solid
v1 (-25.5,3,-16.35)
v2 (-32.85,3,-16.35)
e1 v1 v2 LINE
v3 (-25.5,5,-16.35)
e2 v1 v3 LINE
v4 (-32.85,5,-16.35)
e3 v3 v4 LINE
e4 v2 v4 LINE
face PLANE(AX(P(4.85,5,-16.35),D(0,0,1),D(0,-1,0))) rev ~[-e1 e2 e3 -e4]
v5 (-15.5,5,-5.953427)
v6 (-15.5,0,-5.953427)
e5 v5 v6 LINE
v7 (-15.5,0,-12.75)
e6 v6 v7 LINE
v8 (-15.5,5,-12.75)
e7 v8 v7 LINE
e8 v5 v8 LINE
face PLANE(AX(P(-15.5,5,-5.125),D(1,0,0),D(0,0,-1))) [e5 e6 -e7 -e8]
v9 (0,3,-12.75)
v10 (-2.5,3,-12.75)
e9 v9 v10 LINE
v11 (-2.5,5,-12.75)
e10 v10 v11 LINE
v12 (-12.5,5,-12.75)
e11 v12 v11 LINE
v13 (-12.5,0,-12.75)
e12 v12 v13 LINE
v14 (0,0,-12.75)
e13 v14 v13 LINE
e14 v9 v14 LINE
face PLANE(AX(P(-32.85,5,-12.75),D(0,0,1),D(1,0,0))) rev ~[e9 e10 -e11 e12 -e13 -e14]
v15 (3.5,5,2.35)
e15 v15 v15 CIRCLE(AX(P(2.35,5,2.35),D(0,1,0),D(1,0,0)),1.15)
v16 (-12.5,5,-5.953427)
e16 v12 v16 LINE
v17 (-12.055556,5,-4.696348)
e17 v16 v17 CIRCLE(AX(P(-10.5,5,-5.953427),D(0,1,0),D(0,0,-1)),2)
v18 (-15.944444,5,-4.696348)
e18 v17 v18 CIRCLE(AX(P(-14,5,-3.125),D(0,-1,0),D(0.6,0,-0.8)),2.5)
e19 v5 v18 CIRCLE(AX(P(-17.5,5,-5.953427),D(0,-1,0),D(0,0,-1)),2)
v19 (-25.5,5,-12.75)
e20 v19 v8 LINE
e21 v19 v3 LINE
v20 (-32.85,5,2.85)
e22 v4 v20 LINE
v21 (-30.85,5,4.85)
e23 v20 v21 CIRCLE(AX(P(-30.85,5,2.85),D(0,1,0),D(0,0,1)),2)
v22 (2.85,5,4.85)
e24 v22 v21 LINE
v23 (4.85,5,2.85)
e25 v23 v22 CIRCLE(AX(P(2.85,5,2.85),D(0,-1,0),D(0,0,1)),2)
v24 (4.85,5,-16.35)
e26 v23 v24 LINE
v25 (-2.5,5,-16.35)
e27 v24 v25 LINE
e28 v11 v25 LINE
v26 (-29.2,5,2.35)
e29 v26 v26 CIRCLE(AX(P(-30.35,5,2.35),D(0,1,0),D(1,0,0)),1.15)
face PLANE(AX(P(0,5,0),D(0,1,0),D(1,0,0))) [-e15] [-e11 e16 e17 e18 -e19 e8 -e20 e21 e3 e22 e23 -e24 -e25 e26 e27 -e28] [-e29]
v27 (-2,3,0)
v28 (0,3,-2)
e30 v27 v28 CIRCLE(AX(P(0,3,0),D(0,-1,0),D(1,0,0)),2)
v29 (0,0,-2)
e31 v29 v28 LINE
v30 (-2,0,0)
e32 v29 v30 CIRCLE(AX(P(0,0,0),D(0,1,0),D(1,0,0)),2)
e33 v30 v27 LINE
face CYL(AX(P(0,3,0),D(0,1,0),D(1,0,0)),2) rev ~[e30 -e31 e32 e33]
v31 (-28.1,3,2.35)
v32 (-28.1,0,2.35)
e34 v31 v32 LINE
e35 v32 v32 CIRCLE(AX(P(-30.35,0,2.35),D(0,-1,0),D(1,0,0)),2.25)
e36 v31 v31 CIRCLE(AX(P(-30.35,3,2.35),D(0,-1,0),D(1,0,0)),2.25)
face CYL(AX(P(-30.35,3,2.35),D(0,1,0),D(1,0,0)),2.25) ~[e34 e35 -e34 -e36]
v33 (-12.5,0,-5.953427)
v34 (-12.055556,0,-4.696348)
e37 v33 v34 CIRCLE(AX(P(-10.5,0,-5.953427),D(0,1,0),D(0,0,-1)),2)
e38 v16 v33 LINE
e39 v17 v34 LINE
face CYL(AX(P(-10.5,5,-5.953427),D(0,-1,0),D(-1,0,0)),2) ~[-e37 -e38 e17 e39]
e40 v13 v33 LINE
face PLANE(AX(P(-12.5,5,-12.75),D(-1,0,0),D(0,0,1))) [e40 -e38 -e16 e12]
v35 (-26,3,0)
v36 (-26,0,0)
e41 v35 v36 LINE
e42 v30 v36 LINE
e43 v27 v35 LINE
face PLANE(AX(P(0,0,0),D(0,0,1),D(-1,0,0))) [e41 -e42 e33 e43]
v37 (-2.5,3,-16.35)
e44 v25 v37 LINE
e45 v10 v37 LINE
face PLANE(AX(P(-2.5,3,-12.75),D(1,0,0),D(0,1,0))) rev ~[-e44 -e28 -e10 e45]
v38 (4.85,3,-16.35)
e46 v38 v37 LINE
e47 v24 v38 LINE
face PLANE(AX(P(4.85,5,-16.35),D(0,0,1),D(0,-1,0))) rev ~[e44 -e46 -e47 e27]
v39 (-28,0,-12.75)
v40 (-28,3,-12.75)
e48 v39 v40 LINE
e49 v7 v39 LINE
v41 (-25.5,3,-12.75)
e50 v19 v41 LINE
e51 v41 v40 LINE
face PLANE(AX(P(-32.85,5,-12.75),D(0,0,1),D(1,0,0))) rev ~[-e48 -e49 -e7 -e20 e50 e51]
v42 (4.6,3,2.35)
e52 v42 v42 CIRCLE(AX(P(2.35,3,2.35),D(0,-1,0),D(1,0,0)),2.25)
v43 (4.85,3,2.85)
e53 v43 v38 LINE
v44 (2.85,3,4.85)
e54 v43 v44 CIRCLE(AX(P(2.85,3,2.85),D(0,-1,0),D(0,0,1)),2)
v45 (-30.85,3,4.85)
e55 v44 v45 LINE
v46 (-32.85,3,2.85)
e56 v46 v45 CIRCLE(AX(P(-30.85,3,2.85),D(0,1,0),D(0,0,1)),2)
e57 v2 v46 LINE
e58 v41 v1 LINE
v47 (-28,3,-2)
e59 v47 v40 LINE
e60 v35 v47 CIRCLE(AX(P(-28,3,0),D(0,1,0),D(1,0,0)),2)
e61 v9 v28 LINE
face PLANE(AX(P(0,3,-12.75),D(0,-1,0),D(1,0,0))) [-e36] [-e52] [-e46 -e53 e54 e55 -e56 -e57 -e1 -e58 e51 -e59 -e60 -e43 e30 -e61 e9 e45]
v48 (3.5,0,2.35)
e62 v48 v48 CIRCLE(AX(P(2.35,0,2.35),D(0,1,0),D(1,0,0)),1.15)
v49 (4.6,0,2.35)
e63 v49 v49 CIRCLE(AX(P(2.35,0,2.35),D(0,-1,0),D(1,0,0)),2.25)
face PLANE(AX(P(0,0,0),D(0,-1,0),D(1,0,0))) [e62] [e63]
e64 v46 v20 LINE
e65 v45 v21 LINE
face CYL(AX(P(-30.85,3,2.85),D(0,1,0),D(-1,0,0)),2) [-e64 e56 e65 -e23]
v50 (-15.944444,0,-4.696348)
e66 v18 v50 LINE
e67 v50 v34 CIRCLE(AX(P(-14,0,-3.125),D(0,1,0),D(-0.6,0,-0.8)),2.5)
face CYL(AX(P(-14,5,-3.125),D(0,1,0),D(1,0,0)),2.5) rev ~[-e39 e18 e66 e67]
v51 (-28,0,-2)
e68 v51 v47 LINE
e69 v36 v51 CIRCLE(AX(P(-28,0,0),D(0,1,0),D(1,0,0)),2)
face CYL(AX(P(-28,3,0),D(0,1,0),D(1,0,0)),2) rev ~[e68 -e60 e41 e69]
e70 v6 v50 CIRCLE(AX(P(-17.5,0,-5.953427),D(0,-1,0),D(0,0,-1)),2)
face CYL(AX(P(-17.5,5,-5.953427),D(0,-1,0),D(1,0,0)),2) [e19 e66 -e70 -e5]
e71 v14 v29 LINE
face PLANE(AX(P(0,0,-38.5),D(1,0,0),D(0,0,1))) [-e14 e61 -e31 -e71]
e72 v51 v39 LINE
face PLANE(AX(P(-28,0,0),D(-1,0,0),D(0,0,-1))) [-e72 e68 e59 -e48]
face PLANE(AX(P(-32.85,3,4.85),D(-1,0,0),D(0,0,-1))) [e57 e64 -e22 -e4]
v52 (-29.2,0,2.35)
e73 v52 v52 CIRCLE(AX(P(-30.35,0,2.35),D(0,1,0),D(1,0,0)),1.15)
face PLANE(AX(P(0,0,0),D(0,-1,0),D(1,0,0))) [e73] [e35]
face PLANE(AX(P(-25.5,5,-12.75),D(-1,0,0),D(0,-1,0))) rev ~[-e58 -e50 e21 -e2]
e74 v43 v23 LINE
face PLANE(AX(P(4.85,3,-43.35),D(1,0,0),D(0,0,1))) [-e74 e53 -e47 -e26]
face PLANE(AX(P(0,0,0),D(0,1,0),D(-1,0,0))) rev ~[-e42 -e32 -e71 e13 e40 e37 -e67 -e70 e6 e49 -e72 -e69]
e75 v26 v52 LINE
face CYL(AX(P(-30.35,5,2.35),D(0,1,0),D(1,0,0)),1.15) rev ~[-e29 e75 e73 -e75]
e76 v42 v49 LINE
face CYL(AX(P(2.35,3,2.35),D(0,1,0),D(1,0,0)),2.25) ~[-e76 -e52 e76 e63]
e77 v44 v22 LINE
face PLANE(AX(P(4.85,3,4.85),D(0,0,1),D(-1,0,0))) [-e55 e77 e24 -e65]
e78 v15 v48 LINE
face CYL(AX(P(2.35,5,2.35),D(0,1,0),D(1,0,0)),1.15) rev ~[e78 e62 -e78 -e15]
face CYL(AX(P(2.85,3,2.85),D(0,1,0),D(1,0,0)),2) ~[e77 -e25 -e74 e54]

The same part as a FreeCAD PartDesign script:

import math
import FreeCAD as App
import Part
import Sketcher
from FreeCAD import Vector
Q = App.Units.Quantity


def edges_at(feature, points):
    """Names of the edges that pass closest to the given points."""
    edges = feature.Shape.Edges
    near = lambda p: min(range(len(edges)), key=lambda i: edges[i].distToShape(Part.Vertex(*p))[0])
    return sorted({f"Edge{near(p) + 1}" for p in points})


def add_polygon(sketch, points):
    """Adds a closed chain of lines whose ends are joined by coincident constraints."""
    first, n = sketch.GeometryCount, len(points)
    for a, b in zip(points, points[1:] + points[:1]):
        sketch.addGeometry(Part.LineSegment(App.Vector(*a, 0), App.Vector(*b, 0)), False)
    for i in range(n):
        sketch.addConstraint(Sketcher.Constraint("Coincident", first + i, 2, first + (i + 1) % n, 1))

doc = App.newDocument("Part")
body = doc.addObject("PartDesign::Body", "Body")

sketch1 = doc.addObject("Sketcher::SketchObject", "Sketch")
body.addObject(sketch1)
sketch1.AttachmentSupport = (doc.XZ_Plane, [""])
sketch1.MapMode = "FlatFace"
add_polygon(sketch1, [(-28, 0), (0, 0), (0, -38.5), (-28, -38.5)])
sketch1.addConstraint(Sketcher.Constraint("Horizontal", 0))
sketch1.addConstraint(Sketcher.Constraint("Vertical", 1))
sketch1.addConstraint(Sketcher.Constraint("Horizontal", 2))
sketch1.addConstraint(Sketcher.Constraint("Vertical", 3))
sketch1.addConstraint(Sketcher.Constraint("Coincident", 0, 2, -1, 1))
sketch1.addConstraint(Sketcher.Constraint("DistanceX", 0, 1, 0, 2, Q("28 mm")))
sketch1.addConstraint(Sketcher.Constraint("DistanceY", 1, 2, 1, 1, Q("38.5 mm")))
pad1 = doc.addObject("PartDesign::Pad", "Pad")
body.addObject(pad1)
pad1.Profile = sketch1
pad1.Length = 3
pad1.Reversed = True

sketch2 = doc.addObject("Sketcher::SketchObject", "Sketch001")
body.addObject(sketch2)
sketch2.AttachmentSupport = (doc.XZ_Plane, [""])
sketch2.MapMode = "FlatFace"
sketch2.AttachmentOffset = App.Placement(Vector(0, 0, -3), App.Rotation())
sketch2.addGeometry(Part.Circle(Vector(0, 0, 0), Vector(0, 0, 1), 2), False)
sketch2.addGeometry(Part.Circle(Vector(-28, 0, 0), Vector(0, 0, 1), 2), False)
sketch2.addGeometry(Part.Circle(Vector(-28, -38.5, 0), Vector(0, 0, 1), 2), False)
sketch2.addGeometry(Part.Circle(Vector(0, -38.5, 0), Vector(0, 0, 1), 2), False)
sketch2.addConstraint(Sketcher.Constraint("Coincident", 0, 3, -1, 1))
sketch2.addConstraint(Sketcher.Constraint("Equal", 0, 1))
sketch2.addConstraint(Sketcher.Constraint("Equal", 1, 2))
sketch2.addConstraint(Sketcher.Constraint("Equal", 2, 3))
sketch2.addConstraint(Sketcher.Constraint("PointOnObject", 1, 3, -1))
sketch2.addConstraint(Sketcher.Constraint("PointOnObject", 3, 3, -2))
sketch2.addConstraint(Sketcher.Constraint("Horizontal", 2, 3, 3, 3))
sketch2.addConstraint(Sketcher.Constraint("Vertical", 1, 3, 2, 3))
sketch2.addConstraint(Sketcher.Constraint("Diameter", 0, Q("4 mm")))
sketch2.addConstraint(Sketcher.Constraint("DistanceX", 1, 3, -1, 1, Q("28 mm")))
sketch2.addConstraint(Sketcher.Constraint("DistanceY", 2, 3, -1, 1, Q("38.5 mm")))
pocket1 = doc.addObject("PartDesign::Pocket", "Pocket")
body.addObject(pocket1)
pocket1.Profile = sketch2
pocket1.Length = 3
pocket1.Reversed = True

sketch3 = doc.addObject("Sketcher::SketchObject", "Sketch002")
body.addObject(sketch3)
sketch3.AttachmentSupport = (doc.XZ_Plane, [""])
sketch3.MapMode = "FlatFace"
sketch3.AttachmentOffset = App.Placement(Vector(0, 0, -3), App.Rotation())
add_polygon(sketch3, [(4.85, -43.35), (-32.85, -43.35), (-32.85, 4.85), (4.85, 4.85)])
sketch3.addConstraint(Sketcher.Constraint("Horizontal", 0))
sketch3.addConstraint(Sketcher.Constraint("Vertical", 1))
sketch3.addConstraint(Sketcher.Constraint("Horizontal", 2))
sketch3.addConstraint(Sketcher.Constraint("Vertical", 3))
sketch3.addConstraint(Sketcher.Constraint("DistanceX", 0, 2, 0, 1, Q("37.7 mm")))
sketch3.addConstraint(Sketcher.Constraint("DistanceY", 1, 1, 1, 2, Q("48.2 mm")))
sketch3.addConstraint(Sketcher.Constraint("DistanceY", -1, 1, 1, 2, Q("4.85 mm")))
sketch3.addConstraint(Sketcher.Constraint("DistanceX", -1, 1, 2, 2, Q("4.85 mm")))
pad2 = doc.addObject("PartDesign::Pad", "Pad001")
body.addObject(pad2)
pad2.Profile = sketch3
pad2.Length = 2
pad2.Reversed = True

sketch4 = doc.addObject("Sketcher::SketchObject", "Sketch003")
body.addObject(sketch4)
sketch4.AttachmentSupport = (doc.XZ_Plane, [""])
sketch4.MapMode = "FlatFace"
sketch4.AttachmentOffset = App.Placement(Vector(0, 0, -3), App.Rotation())
sketch4.addGeometry(Part.Circle(Vector(2.35, -40.85, 0), Vector(0, 0, 1), 2.25), False)
sketch4.addGeometry(Part.Circle(Vector(-30.35, -40.85, 0), Vector(0, 0, 1), 2.25), False)
sketch4.addGeometry(Part.Circle(Vector(-30.35, 2.35, 0), Vector(0, 0, 1), 2.25), False)
sketch4.addGeometry(Part.Circle(Vector(2.35, 2.35, 0), Vector(0, 0, 1), 2.25), False)
sketch4.addConstraint(Sketcher.Constraint("Equal", 0, 1))
sketch4.addConstraint(Sketcher.Constraint("Equal", 1, 2))
sketch4.addConstraint(Sketcher.Constraint("Equal", 2, 3))
sketch4.addConstraint(Sketcher.Constraint("Horizontal", 0, 3, 1, 3))
sketch4.addConstraint(Sketcher.Constraint("Horizontal", 2, 3, 3, 3))
sketch4.addConstraint(Sketcher.Constraint("Vertical", 1, 3, 2, 3))
sketch4.addConstraint(Sketcher.Constraint("Vertical", 0, 3, 3, 3))
sketch4.addConstraint(Sketcher.Constraint("Diameter", 0, Q("4.5 mm")))
sketch4.addConstraint(Sketcher.Constraint("DistanceX", -1, 1, 0, 3, Q("2.35 mm")))
sketch4.addConstraint(Sketcher.Constraint("DistanceY", -1, 1, 2, 3, Q("2.35 mm")))
sketch4.addConstraint(Sketcher.Constraint("DistanceX", 1, 3, 0, 3, Q("32.7 mm")))
sketch4.addConstraint(Sketcher.Constraint("DistanceY", 1, 3, 2, 3, Q("43.2 mm")))
pad3 = doc.addObject("PartDesign::Pad", "Pad002")
body.addObject(pad3)
pad3.Profile = sketch4
pad3.Length = 3
doc.recompute()

fillet = doc.addObject("PartDesign::Fillet", "Fillet")
body.addObject(fillet)
fillet.Base = (pad3, edges_at(pad3, [
    (4.85, 4, -43.35),
    (4.85, 4, 4.85),
    (-32.85, 4, 4.85),
    (-32.85, 4, -43.35),
]))
fillet.Radius = 2

sketch5 = doc.addObject("Sketcher::SketchObject", "Sketch004")
body.addObject(sketch5)
sketch5.AttachmentSupport = (doc.XZ_Plane, [""])
sketch5.MapMode = "FlatFace"
sketch5.AttachmentOffset = App.Placement(Vector(0, 0, -5), App.Rotation())
sketch5.addGeometry(Part.Circle(Vector(0, -19.25, 0), Vector(0, 0, 1), 1), False)
sketch5.addGeometry(Part.Circle(Vector(-28, -19.25, 0), Vector(0, 0, 1), 1), False)
sketch5.addConstraint(Sketcher.Constraint("Equal", 0, 1))
sketch5.addConstraint(Sketcher.Constraint("PointOnObject", 0, 3, -2))
sketch5.addConstraint(Sketcher.Constraint("Horizontal", 0, 3, 1, 3))
sketch5.addConstraint(Sketcher.Constraint("Diameter", 0, Q("2 mm")))
sketch5.addConstraint(Sketcher.Constraint("DistanceX", 1, 3, -1, 1, Q("28 mm")))
sketch5.addConstraint(Sketcher.Constraint("DistanceY", 0, 3, -1, 1, Q("19.25 mm")))
pocket2 = doc.addObject("PartDesign::Pocket", "Pocket001")
body.addObject(pocket2)
pocket2.Profile = sketch5
pocket2.Type = "ThroughAll"
pocket2.Reversed = True

sketch6 = doc.addObject("Sketcher::SketchObject", "Sketch005")
body.addObject(sketch6)
sketch6.AttachmentSupport = (doc.XZ_Plane, [""])
sketch6.MapMode = "FlatFace"
sketch6.AttachmentOffset = App.Placement(Vector(0, 0, -5), App.Rotation())
sketch6.addGeometry(Part.Circle(Vector(-14, -3.125, 0), Vector(0, 0, 1), 2.5), False)
sketch6.addConstraint(Sketcher.Constraint("Diameter", 0, Q("5 mm")))
sketch6.addConstraint(Sketcher.Constraint("DistanceX", 0, 3, -1, 1, Q("14 mm")))
sketch6.addConstraint(Sketcher.Constraint("DistanceY", 0, 3, -1, 1, Q("3.125 mm")))
pocket3 = doc.addObject("PartDesign::Pocket", "Pocket002")
body.addObject(pocket3)
pocket3.Profile = sketch6
pocket3.Type = "ThroughAll"
pocket3.Reversed = True

sketch7 = doc.addObject("Sketcher::SketchObject", "Sketch006")
body.addObject(sketch7)
sketch7.AttachmentSupport = (doc.XZ_Plane, [""])
sketch7.MapMode = "FlatFace"
sketch7.AttachmentOffset = App.Placement(Vector(0, 0, -5), App.Rotation())
add_polygon(sketch7, [(-25.5, -25.75), (-25.5, -12.75), (-2.5, -12.75), (-2.5, -25.75)])
sketch7.addConstraint(Sketcher.Constraint("Vertical", 0))
sketch7.addConstraint(Sketcher.Constraint("Horizontal", 1))
sketch7.addConstraint(Sketcher.Constraint("Vertical", 2))
sketch7.addConstraint(Sketcher.Constraint("Horizontal", 3))
sketch7.addConstraint(Sketcher.Constraint("DistanceX", 1, 1, 1, 2, Q("23 mm")))
sketch7.addConstraint(Sketcher.Constraint("DistanceY", 0, 1, 0, 2, Q("13 mm")))
sketch7.addConstraint(Sketcher.Constraint("DistanceX", 0, 2, -1, 1, Q("25.5 mm")))
sketch7.addConstraint(Sketcher.Constraint("DistanceY", 0, 2, -1, 1, Q("12.75 mm")))
pocket4 = doc.addObject("PartDesign::Pocket", "Pocket003")
body.addObject(pocket4)
pocket4.Profile = sketch7
pocket4.Type = "ThroughAll"
pocket4.Reversed = True

sketch8 = doc.addObject("Sketcher::SketchObject", "Sketch007")
body.addObject(sketch8)
sketch8.AttachmentSupport = (doc.XZ_Plane, [""])
sketch8.MapMode = "FlatFace"
sketch8.AttachmentOffset = App.Placement(Vector(0, 0, -5), App.Rotation())
add_polygon(sketch8, [(-32.85, -43.35), (-32.85, -12.75), (4.85, -12.75), (4.85, -43.35)])
sketch8.addConstraint(Sketcher.Constraint("Vertical", 0))
sketch8.addConstraint(Sketcher.Constraint("Horizontal", 1))
sketch8.addConstraint(Sketcher.Constraint("Vertical", 2))
sketch8.addConstraint(Sketcher.Constraint("Horizontal", 3))
sketch8.addConstraint(Sketcher.Constraint("DistanceX", 1, 1, 1, 2, Q("37.7 mm")))
sketch8.addConstraint(Sketcher.Constraint("DistanceY", 0, 1, 0, 2, Q("30.6 mm")))
sketch8.addConstraint(Sketcher.Constraint("DistanceX", 0, 2, -1, 1, Q("32.85 mm")))
sketch8.addConstraint(Sketcher.Constraint("DistanceY", 0, 2, -1, 1, Q("12.75 mm")))
pocket5 = doc.addObject("PartDesign::Pocket", "Pocket004")
body.addObject(pocket5)
pocket5.Profile = sketch8
pocket5.Type = "ThroughAll"
pocket5.Reversed = True

sketch9 = doc.addObject("Sketcher::SketchObject", "Sketch008")
body.addObject(sketch9)
sketch9.AttachmentSupport = (doc.XZ_Plane, [""])
sketch9.MapMode = "FlatFace"
sketch9.AttachmentOffset = App.Placement(Vector(0, 0, -5), App.Rotation())
sketch9.addGeometry(Part.ArcOfCircle(Part.Circle(Vector(-14, -3.125, 0), Vector(0, 0, 1), 2.5), math.radians(-126.869898), math.radians(-53.130102)), False)
sketch9.addGeometry(Part.LineSegment(Vector(-12.5, -5.125, 0), Vector(-12.5, -12.75, 0)), False)
sketch9.addGeometry(Part.LineSegment(Vector(-12.5, -12.75, 0), Vector(-15.5, -12.75, 0)), False)
sketch9.addGeometry(Part.LineSegment(Vector(-15.5, -12.75, 0), Vector(-15.5, -5.125, 0)), False)
sketch9.addConstraint(Sketcher.Constraint("Coincident", 0, 2, 1, 1))
sketch9.addConstraint(Sketcher.Constraint("Coincident", 1, 2, 2, 1))
sketch9.addConstraint(Sketcher.Constraint("Coincident", 2, 2, 3, 1))
sketch9.addConstraint(Sketcher.Constraint("Coincident", 3, 2, 0, 1))
sketch9.addConstraint(Sketcher.Constraint("Vertical", 1))
sketch9.addConstraint(Sketcher.Constraint("Horizontal", 2))
sketch9.addConstraint(Sketcher.Constraint("Vertical", 3))
sketch9.addConstraint(Sketcher.Constraint("Horizontal", 0, 2, 3, 2))
sketch9.addConstraint(Sketcher.Constraint("DistanceX", 2, 2, 2, 1, Q("3 mm")))
sketch9.addConstraint(Sketcher.Constraint("Radius", 0, Q("2.5 mm")))
sketch9.addConstraint(Sketcher.Constraint("DistanceX", 0, 3, -1, 1, Q("14 mm")))
sketch9.addConstraint(Sketcher.Constraint("DistanceY", 1, 2, 1, 1, Q("7.625 mm")))
sketch9.addConstraint(Sketcher.Constraint("DistanceY", 1, 2, -1, 1, Q("12.75 mm")))
pocket6 = doc.addObject("PartDesign::Pocket", "Pocket005")
body.addObject(pocket6)
pocket6.Profile = sketch9
pocket6.Type = "ThroughAll"
pocket6.Reversed = True
doc.recompute()

fillet2 = doc.addObject("PartDesign::Fillet", "Fillet001")
body.addObject(fillet2)
fillet2.Base = (pocket6, edges_at(pocket6, [(-15.5, 2.5, -5.125), (-12.5, 2.5, -5.125)]))
fillet2.Radius = 2

sketch10 = doc.addObject("Sketcher::SketchObject", "Sketch009")
body.addObject(sketch10)
sketch10.AttachmentSupport = (doc.XZ_Plane, [""])
sketch10.MapMode = "FlatFace"
sketch10.AttachmentOffset = App.Placement(Vector(0, 0, -5), App.Rotation())
sketch10.addGeometry(Part.Circle(Vector(2.35, 2.35, 0), Vector(0, 0, 1), 1.15), False)
sketch10.addGeometry(Part.Circle(Vector(-30.35, 2.35, 0), Vector(0, 0, 1), 1.15), False)
sketch10.addConstraint(Sketcher.Constraint("Equal", 0, 1))
sketch10.addConstraint(Sketcher.Constraint("Horizontal", 0, 3, 1, 3))
sketch10.addConstraint(Sketcher.Constraint("Diameter", 0, Q("2.3 mm")))
sketch10.addConstraint(Sketcher.Constraint("DistanceX", 1, 3, 0, 3, Q("32.7 mm")))
sketch10.addConstraint(Sketcher.Constraint("DistanceX", -1, 1, 0, 3, Q("2.35 mm")))
sketch10.addConstraint(Sketcher.Constraint("DistanceY", -1, 1, 0, 3, Q("2.35 mm")))
pocket7 = doc.addObject("PartDesign::Pocket", "Pocket006")
body.addObject(pocket7)
pocket7.Profile = sketch10
pocket7.Type = "ThroughAll"
pocket7.Reversed = True

sketch11 = doc.addObject("Sketcher::SketchObject", "Sketch010")
body.addObject(sketch11)
sketch11.AttachmentSupport = (doc.XY_Plane, [""])
sketch11.MapMode = "FlatFace"
sketch11.AttachmentOffset = App.Placement(Vector(0, 0, -12.75), App.Rotation())
add_polygon(sketch11, [(-32.85, 5), (-25.5, 5), (-25.5, 3), (-32.85, 3)])
add_polygon(sketch11, [(4.85, 3), (-2.5, 3), (-2.5, 5), (4.85, 5)])
sketch11.addConstraint(Sketcher.Constraint("Horizontal", 0))
sketch11.addConstraint(Sketcher.Constraint("Vertical", 1))
sketch11.addConstraint(Sketcher.Constraint("Horizontal", 2))
sketch11.addConstraint(Sketcher.Constraint("Vertical", 3))
sketch11.addConstraint(Sketcher.Constraint("Horizontal", 4))
sketch11.addConstraint(Sketcher.Constraint("Vertical", 5))
sketch11.addConstraint(Sketcher.Constraint("Horizontal", 6))
sketch11.addConstraint(Sketcher.Constraint("Vertical", 7))
sketch11.addConstraint(Sketcher.Constraint("Horizontal", 2, 2, 4, 2))
sketch11.addConstraint(Sketcher.Constraint("Horizontal", 3, 2, 5, 2))
sketch11.addConstraint(Sketcher.Constraint("Equal", 2, 4))
sketch11.addConstraint(Sketcher.Constraint("DistanceX", 4, 2, -1, 1, Q("2.5 mm")))
sketch11.addConstraint(Sketcher.Constraint("DistanceY", 1, 2, 1, 1, Q("2 mm")))
sketch11.addConstraint(Sketcher.Constraint("DistanceY", -1, 1, 0, 2, Q("5 mm")))
sketch11.addConstraint(Sketcher.Constraint("DistanceX", 1, 2, 4, 2, Q("23 mm")))
sketch11.addConstraint(Sketcher.Constraint("DistanceX", 0, 1, 0, 2, Q("7.35 mm")))
pad4 = doc.addObject("PartDesign::Pad", "Pad003")
body.addObject(pad4)
pad4.Profile = sketch11
pad4.Length = 4
pad4.Reversed = True

sketch12 = doc.addObject("Sketcher::SketchObject", "Sketch011")
body.addObject(sketch12)
sketch12.AttachmentSupport = (doc.YZ_Plane, [""])
sketch12.MapMode = "FlatFace"
sketch12.AttachmentOffset = App.Placement(Vector(0, 0, 4.85), App.Rotation())
add_polygon(sketch12, [(3, -16.75), (5, -16.75), (5, -16.35), (3, -16.35)])
sketch12.addConstraint(Sketcher.Constraint("Horizontal", 0))
sketch12.addConstraint(Sketcher.Constraint("Vertical", 1))
sketch12.addConstraint(Sketcher.Constraint("Horizontal", 2))
sketch12.addConstraint(Sketcher.Constraint("Vertical", 3))
sketch12.addConstraint(Sketcher.Constraint("DistanceY", 1, 1, 1, 2, Q("0.4 mm")))
sketch12.addConstraint(Sketcher.Constraint("DistanceX", 0, 1, 0, 2, Q("2 mm")))
sketch12.addConstraint(Sketcher.Constraint("DistanceX", -1, 1, 0, 2, Q("5 mm")))
sketch12.addConstraint(Sketcher.Constraint("DistanceY", 0, 2, -1, 1, Q("16.75 mm")))
pocket8 = doc.addObject("PartDesign::Pocket", "Pocket007")
body.addObject(pocket8)
pocket8.Profile = sketch12
pocket8.Type = "ThroughAll"

doc.recompute()
